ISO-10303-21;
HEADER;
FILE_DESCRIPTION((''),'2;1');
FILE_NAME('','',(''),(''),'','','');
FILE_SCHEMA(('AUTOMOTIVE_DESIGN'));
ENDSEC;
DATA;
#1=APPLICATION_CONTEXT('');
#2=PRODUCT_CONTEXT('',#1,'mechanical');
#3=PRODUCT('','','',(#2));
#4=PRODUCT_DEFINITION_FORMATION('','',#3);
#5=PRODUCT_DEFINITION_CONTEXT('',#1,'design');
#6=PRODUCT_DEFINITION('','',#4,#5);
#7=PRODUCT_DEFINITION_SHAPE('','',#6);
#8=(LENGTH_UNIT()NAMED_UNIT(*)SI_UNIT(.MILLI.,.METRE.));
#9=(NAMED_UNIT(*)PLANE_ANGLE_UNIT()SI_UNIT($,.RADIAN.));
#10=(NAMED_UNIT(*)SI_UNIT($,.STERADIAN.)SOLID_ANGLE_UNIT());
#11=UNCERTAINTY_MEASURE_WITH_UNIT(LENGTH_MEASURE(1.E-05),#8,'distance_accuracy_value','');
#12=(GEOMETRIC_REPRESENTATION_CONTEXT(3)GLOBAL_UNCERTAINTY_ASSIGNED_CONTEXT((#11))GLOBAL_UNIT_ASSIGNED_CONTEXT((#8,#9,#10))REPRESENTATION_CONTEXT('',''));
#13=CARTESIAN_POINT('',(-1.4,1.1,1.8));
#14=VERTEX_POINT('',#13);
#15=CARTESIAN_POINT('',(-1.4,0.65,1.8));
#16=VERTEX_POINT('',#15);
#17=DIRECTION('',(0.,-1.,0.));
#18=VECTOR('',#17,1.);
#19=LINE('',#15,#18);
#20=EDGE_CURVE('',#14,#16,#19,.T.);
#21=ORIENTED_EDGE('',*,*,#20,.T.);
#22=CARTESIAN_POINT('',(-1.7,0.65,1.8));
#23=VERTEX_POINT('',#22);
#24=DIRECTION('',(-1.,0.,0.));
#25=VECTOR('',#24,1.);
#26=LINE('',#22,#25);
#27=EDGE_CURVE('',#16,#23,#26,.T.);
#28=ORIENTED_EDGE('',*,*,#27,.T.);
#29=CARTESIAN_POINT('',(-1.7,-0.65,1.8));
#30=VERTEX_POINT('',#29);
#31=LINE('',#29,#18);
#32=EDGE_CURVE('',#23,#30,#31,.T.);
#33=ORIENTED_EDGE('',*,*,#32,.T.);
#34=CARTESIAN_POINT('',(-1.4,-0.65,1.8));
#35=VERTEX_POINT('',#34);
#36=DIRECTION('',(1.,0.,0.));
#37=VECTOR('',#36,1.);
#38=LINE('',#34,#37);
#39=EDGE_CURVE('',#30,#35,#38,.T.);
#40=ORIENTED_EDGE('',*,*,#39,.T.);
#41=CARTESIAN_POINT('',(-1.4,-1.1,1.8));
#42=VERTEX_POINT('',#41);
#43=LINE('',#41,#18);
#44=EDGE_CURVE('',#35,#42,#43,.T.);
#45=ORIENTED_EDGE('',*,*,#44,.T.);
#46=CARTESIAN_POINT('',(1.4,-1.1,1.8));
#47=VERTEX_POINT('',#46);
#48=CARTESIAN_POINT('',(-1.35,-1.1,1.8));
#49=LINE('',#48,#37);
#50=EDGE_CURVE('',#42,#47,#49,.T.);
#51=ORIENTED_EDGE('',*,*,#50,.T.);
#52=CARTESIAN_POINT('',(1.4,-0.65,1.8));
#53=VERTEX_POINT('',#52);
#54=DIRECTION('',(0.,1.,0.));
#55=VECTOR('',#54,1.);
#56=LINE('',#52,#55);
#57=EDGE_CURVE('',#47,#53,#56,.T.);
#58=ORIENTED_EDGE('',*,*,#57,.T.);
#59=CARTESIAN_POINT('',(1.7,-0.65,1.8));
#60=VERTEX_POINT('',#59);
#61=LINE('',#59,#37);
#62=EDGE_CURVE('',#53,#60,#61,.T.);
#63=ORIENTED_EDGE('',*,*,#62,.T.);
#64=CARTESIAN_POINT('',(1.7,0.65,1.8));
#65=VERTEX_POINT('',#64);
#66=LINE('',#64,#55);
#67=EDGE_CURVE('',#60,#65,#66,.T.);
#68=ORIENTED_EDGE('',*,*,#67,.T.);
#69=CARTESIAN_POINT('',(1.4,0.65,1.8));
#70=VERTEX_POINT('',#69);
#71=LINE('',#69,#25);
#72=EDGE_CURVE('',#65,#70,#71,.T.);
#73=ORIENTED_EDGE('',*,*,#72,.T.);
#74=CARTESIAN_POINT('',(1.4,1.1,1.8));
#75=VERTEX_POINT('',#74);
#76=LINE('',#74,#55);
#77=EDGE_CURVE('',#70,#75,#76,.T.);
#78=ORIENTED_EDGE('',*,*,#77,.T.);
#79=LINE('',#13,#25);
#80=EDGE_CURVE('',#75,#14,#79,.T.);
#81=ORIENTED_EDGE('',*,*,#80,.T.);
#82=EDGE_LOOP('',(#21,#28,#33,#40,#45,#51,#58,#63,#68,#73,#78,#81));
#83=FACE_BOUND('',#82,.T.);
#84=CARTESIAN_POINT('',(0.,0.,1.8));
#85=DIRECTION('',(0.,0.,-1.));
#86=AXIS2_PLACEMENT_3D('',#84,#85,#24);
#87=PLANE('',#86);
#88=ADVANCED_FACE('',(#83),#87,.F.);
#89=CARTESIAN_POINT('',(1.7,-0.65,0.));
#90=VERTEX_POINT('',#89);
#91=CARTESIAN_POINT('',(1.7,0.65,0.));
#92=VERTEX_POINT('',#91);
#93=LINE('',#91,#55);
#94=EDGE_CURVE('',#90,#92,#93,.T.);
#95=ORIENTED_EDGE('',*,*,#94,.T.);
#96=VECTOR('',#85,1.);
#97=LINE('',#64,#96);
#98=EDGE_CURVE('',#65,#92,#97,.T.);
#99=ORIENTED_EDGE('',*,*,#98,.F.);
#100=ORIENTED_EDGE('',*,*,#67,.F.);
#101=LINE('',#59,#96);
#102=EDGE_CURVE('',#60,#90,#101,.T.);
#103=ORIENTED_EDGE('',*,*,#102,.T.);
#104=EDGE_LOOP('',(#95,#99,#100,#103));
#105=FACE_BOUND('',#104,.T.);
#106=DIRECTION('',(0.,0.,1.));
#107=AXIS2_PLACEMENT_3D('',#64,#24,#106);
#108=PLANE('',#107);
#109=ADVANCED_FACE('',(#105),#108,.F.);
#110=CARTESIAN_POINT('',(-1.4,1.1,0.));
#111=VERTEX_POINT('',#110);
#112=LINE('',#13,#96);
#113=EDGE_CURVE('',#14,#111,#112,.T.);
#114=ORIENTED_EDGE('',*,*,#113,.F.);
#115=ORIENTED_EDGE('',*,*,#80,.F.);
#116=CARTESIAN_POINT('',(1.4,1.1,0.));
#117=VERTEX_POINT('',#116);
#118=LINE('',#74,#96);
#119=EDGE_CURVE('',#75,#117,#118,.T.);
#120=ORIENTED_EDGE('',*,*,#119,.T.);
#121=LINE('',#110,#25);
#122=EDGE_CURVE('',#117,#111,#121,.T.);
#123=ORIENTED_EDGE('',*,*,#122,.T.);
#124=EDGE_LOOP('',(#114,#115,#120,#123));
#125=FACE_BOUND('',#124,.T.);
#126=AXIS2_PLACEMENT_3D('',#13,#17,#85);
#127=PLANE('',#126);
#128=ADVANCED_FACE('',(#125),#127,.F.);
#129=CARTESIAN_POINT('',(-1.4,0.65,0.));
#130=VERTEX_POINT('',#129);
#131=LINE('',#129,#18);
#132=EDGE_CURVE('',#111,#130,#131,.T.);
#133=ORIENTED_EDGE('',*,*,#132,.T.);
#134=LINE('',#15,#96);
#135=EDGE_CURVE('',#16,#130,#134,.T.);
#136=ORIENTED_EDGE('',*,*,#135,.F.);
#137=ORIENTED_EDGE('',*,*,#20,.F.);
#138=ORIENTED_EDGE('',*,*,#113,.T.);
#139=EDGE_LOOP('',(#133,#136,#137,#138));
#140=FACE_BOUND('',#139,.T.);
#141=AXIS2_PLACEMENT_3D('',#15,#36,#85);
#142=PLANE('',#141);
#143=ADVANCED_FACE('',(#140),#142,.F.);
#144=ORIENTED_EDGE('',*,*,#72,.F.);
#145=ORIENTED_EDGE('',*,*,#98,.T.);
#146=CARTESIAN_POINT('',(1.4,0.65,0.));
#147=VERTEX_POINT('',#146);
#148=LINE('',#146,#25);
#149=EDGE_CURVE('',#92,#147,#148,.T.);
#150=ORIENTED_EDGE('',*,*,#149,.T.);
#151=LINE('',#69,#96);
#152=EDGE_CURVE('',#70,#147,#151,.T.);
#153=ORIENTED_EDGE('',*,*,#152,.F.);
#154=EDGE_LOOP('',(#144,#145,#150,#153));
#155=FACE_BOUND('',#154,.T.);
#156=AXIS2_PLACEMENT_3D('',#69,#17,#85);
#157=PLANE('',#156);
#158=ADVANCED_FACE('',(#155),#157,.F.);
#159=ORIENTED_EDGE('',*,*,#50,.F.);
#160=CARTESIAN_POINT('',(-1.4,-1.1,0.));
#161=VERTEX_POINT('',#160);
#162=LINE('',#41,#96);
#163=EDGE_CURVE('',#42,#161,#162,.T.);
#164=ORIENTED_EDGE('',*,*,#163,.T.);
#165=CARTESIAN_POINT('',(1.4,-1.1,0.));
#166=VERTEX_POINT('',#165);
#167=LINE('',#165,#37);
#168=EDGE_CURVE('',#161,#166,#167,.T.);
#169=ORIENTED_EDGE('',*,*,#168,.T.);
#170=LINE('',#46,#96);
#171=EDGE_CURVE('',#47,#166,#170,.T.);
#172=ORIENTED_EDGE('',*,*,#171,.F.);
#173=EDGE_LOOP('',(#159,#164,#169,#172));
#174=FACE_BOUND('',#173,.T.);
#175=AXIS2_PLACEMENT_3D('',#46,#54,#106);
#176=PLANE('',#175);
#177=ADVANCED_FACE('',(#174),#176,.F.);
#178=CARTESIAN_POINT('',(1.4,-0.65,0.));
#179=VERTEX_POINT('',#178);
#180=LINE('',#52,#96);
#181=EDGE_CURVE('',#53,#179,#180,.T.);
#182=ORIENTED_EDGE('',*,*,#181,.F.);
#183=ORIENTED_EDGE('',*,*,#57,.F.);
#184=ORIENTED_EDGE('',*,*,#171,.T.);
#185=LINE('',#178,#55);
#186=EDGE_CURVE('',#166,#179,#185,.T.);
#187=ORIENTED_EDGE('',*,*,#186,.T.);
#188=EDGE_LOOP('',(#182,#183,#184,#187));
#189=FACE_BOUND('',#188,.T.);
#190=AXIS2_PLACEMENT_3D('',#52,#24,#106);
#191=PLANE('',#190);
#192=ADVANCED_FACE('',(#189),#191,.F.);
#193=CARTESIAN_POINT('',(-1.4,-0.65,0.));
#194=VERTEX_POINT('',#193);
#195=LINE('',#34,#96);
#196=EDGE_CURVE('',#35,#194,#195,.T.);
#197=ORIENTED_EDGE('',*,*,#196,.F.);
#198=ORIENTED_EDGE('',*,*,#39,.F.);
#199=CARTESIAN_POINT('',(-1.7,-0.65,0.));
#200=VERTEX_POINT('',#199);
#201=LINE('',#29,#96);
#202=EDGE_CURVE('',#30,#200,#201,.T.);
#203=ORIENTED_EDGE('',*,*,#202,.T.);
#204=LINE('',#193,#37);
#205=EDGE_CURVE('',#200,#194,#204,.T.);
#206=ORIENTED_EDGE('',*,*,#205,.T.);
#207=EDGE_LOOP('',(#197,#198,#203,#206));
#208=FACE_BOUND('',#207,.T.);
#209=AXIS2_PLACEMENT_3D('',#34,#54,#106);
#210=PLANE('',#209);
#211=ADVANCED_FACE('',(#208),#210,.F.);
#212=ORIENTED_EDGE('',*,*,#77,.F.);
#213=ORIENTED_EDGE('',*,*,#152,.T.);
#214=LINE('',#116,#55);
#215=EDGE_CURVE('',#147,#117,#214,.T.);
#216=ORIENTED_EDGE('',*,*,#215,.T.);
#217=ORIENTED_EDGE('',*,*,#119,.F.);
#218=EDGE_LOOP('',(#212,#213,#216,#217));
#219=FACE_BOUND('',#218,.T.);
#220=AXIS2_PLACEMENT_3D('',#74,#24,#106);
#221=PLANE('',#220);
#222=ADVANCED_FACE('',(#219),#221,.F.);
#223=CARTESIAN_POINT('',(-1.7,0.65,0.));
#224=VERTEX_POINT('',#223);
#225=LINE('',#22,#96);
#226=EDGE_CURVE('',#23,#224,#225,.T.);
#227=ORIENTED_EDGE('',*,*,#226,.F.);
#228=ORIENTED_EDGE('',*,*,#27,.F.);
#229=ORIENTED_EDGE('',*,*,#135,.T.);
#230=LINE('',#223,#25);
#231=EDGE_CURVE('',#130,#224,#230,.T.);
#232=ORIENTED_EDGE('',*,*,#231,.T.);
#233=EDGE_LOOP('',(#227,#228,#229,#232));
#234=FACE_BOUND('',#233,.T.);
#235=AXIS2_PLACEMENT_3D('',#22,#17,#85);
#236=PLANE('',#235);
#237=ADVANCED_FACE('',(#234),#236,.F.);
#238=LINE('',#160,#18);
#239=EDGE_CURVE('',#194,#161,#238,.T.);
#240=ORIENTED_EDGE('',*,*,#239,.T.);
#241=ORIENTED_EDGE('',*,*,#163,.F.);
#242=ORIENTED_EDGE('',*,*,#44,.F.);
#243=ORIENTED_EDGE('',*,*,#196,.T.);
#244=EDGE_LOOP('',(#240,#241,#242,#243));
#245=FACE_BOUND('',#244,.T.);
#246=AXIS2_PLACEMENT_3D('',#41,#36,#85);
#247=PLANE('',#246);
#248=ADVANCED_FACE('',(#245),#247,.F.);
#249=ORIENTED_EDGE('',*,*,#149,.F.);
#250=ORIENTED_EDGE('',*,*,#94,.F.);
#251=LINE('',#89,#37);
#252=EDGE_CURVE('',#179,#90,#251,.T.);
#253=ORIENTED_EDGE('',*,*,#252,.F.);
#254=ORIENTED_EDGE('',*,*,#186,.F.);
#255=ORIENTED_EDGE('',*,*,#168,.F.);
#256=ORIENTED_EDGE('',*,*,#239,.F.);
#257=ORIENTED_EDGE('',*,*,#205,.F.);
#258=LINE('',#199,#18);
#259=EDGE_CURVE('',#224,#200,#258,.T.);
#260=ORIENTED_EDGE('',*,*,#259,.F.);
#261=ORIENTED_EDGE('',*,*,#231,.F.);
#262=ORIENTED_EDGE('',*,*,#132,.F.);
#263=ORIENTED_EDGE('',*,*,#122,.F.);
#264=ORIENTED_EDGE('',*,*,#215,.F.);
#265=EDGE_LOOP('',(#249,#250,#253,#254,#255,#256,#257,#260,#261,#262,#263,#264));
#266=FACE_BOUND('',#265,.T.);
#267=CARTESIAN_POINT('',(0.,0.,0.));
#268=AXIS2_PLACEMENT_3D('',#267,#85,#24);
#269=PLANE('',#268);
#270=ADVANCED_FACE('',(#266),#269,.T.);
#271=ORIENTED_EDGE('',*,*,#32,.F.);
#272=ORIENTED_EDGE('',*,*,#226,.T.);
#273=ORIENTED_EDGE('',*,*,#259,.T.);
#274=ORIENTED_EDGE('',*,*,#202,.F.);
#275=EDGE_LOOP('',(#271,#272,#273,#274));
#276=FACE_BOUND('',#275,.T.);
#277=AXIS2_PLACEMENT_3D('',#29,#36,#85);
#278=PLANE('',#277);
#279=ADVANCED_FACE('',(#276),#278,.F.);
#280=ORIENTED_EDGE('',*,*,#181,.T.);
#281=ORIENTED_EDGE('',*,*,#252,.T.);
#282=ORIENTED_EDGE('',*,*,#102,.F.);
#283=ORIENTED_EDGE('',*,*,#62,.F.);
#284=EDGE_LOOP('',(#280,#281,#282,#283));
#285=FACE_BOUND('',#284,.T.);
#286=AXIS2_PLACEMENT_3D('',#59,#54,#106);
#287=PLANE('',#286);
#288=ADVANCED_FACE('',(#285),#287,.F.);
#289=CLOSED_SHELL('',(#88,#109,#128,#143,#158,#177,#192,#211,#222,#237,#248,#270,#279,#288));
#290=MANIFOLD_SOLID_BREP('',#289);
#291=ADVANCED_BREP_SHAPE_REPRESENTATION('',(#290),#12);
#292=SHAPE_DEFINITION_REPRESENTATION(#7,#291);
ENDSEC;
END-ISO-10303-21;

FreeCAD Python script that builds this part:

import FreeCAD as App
import Part
import Sketcher

V = App.Vector
Q = App.Units.Quantity

doc = App.newDocument("Part")
body = doc.addObject("PartDesign::Body", "Body")

# Sketch on XY plane
sketch1 = doc.addObject("Sketcher::SketchObject", "Sketch")
body.addObject(sketch1)
sketch1.AttachmentSupport = (doc.XY_Plane, [""])
sketch1.MapMode = "FlatFace"
sketch1.addGeometry([
    Part.LineSegment(V(-1.4, -0.65, 0), V(-1.4, -1.1, 0)),  # 0
    Part.LineSegment(V(-1.4, -1.1, 0), V(1.4, -1.1, 0)),  # 1
    Part.LineSegment(V(1.4, -1.1, 0), V(1.4, -0.65, 0)),  # 2
    Part.LineSegment(V(1.4, -0.65, 0), V(1.7, -0.65, 0)),  # 3
    Part.LineSegment(V(1.7, -0.65, 0), V(1.7, 0.65, 0)),  # 4
    Part.LineSegment(V(1.7, 0.65, 0), V(1.4, 0.65, 0)),  # 5
    Part.LineSegment(V(1.4, 0.65, 0), V(1.4, 1.1, 0)),  # 6
    Part.LineSegment(V(1.4, 1.1, 0), V(-1.4, 1.1, 0)),  # 7
    Part.LineSegment(V(-1.4, 1.1, 0), V(-1.4, 0.65, 0)),  # 8
    Part.LineSegment(V(-1.4, 0.65, 0), V(-1.7, 0.65, 0)),  # 9
    Part.LineSegment(V(-1.7, 0.65, 0), V(-1.7, -0.65, 0)),  # 10
    Part.LineSegment(V(-1.7, -0.65, 0), V(-1.4, -0.65, 0)),  # 11
], False)
sketch1.addConstraint([
    Sketcher.Constraint("Coincident", 0, 2, 1, 1),
    Sketcher.Constraint("Coincident", 1, 2, 2, 1),
    Sketcher.Constraint("Coincident", 2, 2, 3, 1),
    Sketcher.Constraint("Coincident", 3, 2, 4, 1),
    Sketcher.Constraint("Coincident", 4, 2, 5, 1),
    Sketcher.Constraint("Coincident", 5, 2, 6, 1),
    Sketcher.Constraint("Coincident", 6, 2, 7, 1),
    Sketcher.Constraint("Coincident", 7, 2, 8, 1),
    Sketcher.Constraint("Coincident", 8, 2, 9, 1),
    Sketcher.Constraint("Coincident", 9, 2, 10, 1),
    Sketcher.Constraint("Coincident", 10, 2, 11, 1),
    Sketcher.Constraint("Coincident", 11, 2, 0, 1),
    Sketcher.Constraint("Vertical", 0),
    Sketcher.Constraint("Horizontal", 1),
    Sketcher.Constraint("Vertical", 2),
    Sketcher.Constraint("Horizontal", 3),
    Sketcher.Constraint("Vertical", 4),
    Sketcher.Constraint("Horizontal", 5),
    Sketcher.Constraint("Vertical", 6),
    Sketcher.Constraint("Horizontal", 7),
    Sketcher.Constraint("Vertical", 8),
    Sketcher.Constraint("Horizontal", 9),
    Sketcher.Constraint("Vertical", 10),
    Sketcher.Constraint("Horizontal", 11),
    Sketcher.Constraint("Symmetric", 0, 2, 6, 2, -1, 1),
    Sketcher.Constraint("Symmetric", 2, 2, 8, 2, -1, 1),
    Sketcher.Constraint("Symmetric", 4, 2, 10, 2, -1, 1),
    Sketcher.Constraint("Symmetric", 5, 2, 8, 2, -2),
    Sketcher.Constraint("DistanceX", 1, 1, 1, 2, Q("2.8 mm")),
    Sketcher.Constraint("DistanceX", 3, 1, 3, 2, Q("0.3 mm")),
    Sketcher.Constraint("DistanceY", 4, 1, 4, 2, Q("1.3 mm")),
    Sketcher.Constraint("DistanceY", 0, 2, 0, 1, Q("0.45 mm")),
])
pad1 = doc.addObject("PartDesign::Pad", "Pad")
body.addObject(pad1)
pad1.Profile = sketch1
pad1.Length = 1.8

doc.recompute()
